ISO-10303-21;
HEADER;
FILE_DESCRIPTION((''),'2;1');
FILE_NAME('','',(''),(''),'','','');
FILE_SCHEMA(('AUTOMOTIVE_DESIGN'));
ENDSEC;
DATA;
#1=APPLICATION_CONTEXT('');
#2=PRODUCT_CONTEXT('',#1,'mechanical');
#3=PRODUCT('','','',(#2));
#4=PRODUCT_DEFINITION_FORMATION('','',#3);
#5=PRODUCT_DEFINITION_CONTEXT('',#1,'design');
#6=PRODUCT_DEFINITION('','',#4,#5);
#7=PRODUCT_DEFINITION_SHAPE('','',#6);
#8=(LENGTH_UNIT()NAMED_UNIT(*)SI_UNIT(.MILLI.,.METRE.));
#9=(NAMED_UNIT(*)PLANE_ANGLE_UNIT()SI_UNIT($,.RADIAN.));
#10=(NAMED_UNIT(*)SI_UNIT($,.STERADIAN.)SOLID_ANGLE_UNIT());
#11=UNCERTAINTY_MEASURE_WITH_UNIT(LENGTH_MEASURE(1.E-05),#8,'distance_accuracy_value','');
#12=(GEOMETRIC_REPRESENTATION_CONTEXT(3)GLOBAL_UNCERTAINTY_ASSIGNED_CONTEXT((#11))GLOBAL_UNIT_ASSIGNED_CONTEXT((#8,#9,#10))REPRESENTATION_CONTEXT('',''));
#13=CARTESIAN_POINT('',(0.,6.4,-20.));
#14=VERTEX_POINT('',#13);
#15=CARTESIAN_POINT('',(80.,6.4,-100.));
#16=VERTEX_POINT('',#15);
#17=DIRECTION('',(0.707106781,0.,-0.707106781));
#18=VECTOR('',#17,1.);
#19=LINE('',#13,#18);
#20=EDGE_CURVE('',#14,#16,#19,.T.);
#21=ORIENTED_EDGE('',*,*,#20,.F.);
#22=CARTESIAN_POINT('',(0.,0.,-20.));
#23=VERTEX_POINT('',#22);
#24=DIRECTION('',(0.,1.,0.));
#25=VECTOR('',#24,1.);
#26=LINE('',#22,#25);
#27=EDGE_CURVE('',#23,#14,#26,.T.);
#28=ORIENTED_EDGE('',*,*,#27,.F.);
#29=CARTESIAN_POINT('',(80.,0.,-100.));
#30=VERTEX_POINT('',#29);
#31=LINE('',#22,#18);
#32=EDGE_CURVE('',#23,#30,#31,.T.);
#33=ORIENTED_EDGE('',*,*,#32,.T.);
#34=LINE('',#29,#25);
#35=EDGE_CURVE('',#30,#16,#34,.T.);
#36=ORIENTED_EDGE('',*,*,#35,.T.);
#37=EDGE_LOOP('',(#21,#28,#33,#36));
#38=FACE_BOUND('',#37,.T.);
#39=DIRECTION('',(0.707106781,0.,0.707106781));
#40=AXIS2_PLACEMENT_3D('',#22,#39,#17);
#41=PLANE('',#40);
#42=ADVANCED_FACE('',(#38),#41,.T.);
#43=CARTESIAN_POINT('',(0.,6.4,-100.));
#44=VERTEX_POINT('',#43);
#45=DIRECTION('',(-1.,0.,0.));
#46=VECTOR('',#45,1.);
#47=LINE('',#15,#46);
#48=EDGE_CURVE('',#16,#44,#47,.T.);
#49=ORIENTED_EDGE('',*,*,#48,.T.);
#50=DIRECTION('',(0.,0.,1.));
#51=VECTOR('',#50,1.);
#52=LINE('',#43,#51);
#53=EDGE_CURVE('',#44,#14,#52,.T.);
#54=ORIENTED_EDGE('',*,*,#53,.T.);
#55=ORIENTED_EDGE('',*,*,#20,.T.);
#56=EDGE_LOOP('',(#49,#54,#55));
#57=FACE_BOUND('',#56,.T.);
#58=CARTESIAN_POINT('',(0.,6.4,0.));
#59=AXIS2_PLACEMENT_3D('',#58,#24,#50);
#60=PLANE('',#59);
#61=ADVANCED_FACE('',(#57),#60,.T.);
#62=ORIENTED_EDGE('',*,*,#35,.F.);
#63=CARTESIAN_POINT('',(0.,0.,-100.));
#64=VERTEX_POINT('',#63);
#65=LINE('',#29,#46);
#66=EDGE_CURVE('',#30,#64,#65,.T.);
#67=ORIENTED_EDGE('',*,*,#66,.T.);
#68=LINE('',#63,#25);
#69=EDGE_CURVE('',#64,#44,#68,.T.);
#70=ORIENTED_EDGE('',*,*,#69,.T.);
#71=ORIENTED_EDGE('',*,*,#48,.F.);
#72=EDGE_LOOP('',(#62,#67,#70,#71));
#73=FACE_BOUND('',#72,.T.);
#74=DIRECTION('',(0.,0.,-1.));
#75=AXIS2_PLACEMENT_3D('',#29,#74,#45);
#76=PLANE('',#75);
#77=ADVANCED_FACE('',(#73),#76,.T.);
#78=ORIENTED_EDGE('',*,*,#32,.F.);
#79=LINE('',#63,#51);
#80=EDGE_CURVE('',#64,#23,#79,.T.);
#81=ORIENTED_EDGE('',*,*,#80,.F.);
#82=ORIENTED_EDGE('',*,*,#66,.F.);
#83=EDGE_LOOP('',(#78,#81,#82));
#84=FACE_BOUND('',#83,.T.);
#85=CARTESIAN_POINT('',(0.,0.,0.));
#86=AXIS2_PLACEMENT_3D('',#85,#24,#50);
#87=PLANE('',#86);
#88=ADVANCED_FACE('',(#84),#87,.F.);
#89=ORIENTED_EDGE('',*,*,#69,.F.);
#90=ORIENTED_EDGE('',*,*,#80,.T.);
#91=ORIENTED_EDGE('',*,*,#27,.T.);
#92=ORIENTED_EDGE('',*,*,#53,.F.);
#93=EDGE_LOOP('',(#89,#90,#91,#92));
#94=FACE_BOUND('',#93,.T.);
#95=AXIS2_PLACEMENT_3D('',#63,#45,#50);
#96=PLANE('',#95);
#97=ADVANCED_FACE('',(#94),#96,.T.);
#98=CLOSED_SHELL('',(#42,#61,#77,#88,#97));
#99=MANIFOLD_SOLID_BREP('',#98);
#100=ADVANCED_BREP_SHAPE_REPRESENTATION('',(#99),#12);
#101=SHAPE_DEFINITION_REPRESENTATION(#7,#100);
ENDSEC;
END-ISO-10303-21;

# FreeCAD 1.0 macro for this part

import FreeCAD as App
import Part
import Sketcher
from FreeCAD import Vector
Q = App.Units.Quantity


def add_polygon(sketch, points):
    """Adds a closed chain of lines whose ends are joined by coincident constraints."""
    first, n = sketch.GeometryCount, len(points)
    for a, b in zip(points, points[1:] + points[:1]):
        sketch.addGeometry(Part.LineSegment(App.Vector(*a, 0), App.Vector(*b, 0)), False)
    for i in range(n):
        sketch.addConstraint(Sketcher.Constraint("Coincident", first + i, 2, first + (i + 1) % n, 1))

doc = App.newDocument("Part")
body = doc.addObject("PartDesign::Body", "Body")

sketch1 = body.newObject("Sketcher::SketchObject", "Sketch")
sketch1.AttachmentSupport = (doc.getObject("XZ_Plane"), [""])
sketch1.MapMode = "FlatFace"
sketch1.AttachmentOffset = App.Placement(Vector(0, 0, -6.4), App.Rotation())
add_polygon(sketch1, [(0, -100), (0, -20), (80, -100)])
sketch1.addConstraint([
    Sketcher.Constraint("Vertical", 0),
    Sketcher.Constraint("Horizontal", 2),
    Sketcher.Constraint("PointOnObject", 0, 2, -2),
    Sketcher.Constraint("Equal", 2, 0),
    Sketcher.Constraint("DistanceX", 2, 2, 2, 1, Q("80 mm")),
    Sketcher.Constraint("DistanceY", 0, 2, -1, 1, Q("20 mm")),
])
pad1 = body.newObject("PartDesign::Pad", "Pad")
pad1.Profile = sketch1
pad1.Length = 6.4

doc.recompute()
